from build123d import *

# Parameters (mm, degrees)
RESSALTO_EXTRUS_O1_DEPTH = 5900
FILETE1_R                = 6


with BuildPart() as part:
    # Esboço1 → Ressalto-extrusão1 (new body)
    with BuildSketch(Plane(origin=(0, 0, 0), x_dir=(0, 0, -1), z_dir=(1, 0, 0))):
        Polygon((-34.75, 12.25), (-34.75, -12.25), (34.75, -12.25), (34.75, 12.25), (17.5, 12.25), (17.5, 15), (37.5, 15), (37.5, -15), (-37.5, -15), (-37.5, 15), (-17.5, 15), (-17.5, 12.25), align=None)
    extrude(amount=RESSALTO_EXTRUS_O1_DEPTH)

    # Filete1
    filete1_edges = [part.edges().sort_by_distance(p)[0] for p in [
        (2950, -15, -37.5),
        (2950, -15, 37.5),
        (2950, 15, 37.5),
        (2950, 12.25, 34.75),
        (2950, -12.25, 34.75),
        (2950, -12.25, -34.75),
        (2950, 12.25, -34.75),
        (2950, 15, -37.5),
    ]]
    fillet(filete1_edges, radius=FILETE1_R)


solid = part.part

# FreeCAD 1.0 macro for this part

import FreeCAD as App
import Part
import Sketcher
from FreeCAD import Vector
Q = App.Units.Quantity


def edges_at(feature, points):
    """Names of the edges that pass closest to the given points."""
    edges = feature.Shape.Edges
    near = lambda p: min(range(len(edges)), key=lambda i: edges[i].distToShape(Part.Vertex(*p))[0])
    return sorted({f"Edge{near(p) + 1}" for p in points})


def add_polygon(sketch, points):
    """Adds a closed chain of lines whose ends are joined by coincident constraints."""
    first, n = sketch.GeometryCount, len(points)
    for a, b in zip(points, points[1:] + points[:1]):
        sketch.addGeometry(Part.LineSegment(App.Vector(*a, 0), App.Vector(*b, 0)), False)
    for i in range(n):
        sketch.addConstraint(Sketcher.Constraint("Coincident", first + i, 2, first + (i + 1) % n, 1))

doc = App.newDocument("Part")
body = doc.addObject("PartDesign::Body", "Body")

sketch1 = doc.addObject("Sketcher::SketchObject", "Sketch")
body.addObject(sketch1)
sketch1.AttachmentSupport = (doc.YZ_Plane, [""])
sketch1.MapMode = "FlatFace"
add_polygon(sketch1, [(-12.2, 34.8), (12.2, 34.8), (12.2, 17.5), (15, 17.5), (15, 37.5), (-15, 37.5), (-15, -37.5), (15, -37.5), (15, -17.5), (12.2, -17.5), (12.2, -34.8), (-12.2, -34.8)])
sketch1.addConstraint(Sketcher.Constraint("Horizontal", 0))
sketch1.addConstraint(Sketcher.Constraint("Vertical", 1))
sketch1.addConstraint(Sketcher.Constraint("Horizontal", 2))
sketch1.addConstraint(Sketcher.Constraint("Vertical", 3))
sketch1.addConstraint(Sketcher.Constraint("Horizontal", 4))
sketch1.addConstraint(Sketcher.Constraint("Vertical", 5))
sketch1.addConstraint(Sketcher.Constraint("Horizontal", 6))
sketch1.addConstraint(Sketcher.Constraint("Vertical", 7))
sketch1.addConstraint(Sketcher.Constraint("Horizontal", 8))
sketch1.addConstraint(Sketcher.Constraint("Vertical", 9))
sketch1.addConstraint(Sketcher.Constraint("Horizontal", 10))
sketch1.addConstraint(Sketcher.Constraint("Vertical", 11))
sketch1.addConstraint(Sketcher.Constraint("Symmetric", 3, 2, 5, 2, -1, 1))
sketch1.addConstraint(Sketcher.Constraint("Symmetric", 0, 2, 10, 2, -1, 1))
sketch1.addConstraint(Sketcher.Constraint("Symmetric", 2, 2, 7, 2, -1))
sketch1.addConstraint(Sketcher.Constraint("Vertical", 1, 2, 8, 2))
sketch1.addConstraint(Sketcher.Constraint("DistanceX", 4, 2, 4, 1, Q("30 mm")))
sketch1.addConstraint(Sketcher.Constraint("DistanceY", 3, 1, 3, 2, Q("20 mm")))
sketch1.addConstraint(Sketcher.Constraint("DistanceY", 5, 2, 5, 1, Q("75 mm")))
sketch1.addConstraint(Sketcher.Constraint("DistanceX", 0, 1, 0, 2, Q("24.5 mm")))
sketch1.addConstraint(Sketcher.Constraint("DistanceY", 11, 1, 11, 2, Q("69.5 mm")))
pad1 = doc.addObject("PartDesign::Pad", "Pad")
body.addObject(pad1)
pad1.Profile = sketch1
pad1.Length = 5900
doc.recompute()

fillet = doc.addObject("PartDesign::Fillet", "Fillet")
body.addObject(fillet)
fillet.Base = (pad1, edges_at(pad1, [
    (2950, -15, -37.5),
    (2950, -15, 37.5),
    (2950, 15, 37.5),
    (2950, 12.25, 34.75),
    (2950, -12.25, 34.75),
    (2950, -12.25, -34.75),
    (2950, 12.25, -34.75),
    (2950, 15, -37.5),
]))
fillet.Radius = 6

doc.recompute()
